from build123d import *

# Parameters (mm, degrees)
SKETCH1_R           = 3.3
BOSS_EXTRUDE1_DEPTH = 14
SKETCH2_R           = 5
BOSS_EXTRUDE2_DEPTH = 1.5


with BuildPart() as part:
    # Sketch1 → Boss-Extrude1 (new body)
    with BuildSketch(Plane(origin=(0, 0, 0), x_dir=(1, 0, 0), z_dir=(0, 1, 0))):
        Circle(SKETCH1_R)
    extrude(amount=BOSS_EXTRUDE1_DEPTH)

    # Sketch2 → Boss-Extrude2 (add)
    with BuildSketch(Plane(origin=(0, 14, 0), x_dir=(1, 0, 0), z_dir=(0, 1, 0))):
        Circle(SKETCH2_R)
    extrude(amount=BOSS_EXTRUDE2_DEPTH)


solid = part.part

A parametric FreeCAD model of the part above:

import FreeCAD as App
import Part
import Sketcher

V = App.Vector

doc = App.newDocument("Part")
body = doc.addObject("PartDesign::Body", "Body")

# Sketch on XZ plane
sketch1 = doc.addObject("Sketcher::SketchObject", "Sketch")
body.addObject(sketch1)
sketch1.AttachmentSupport = (doc.XZ_Plane, [""])
sketch1.MapMode = "FlatFace"
sketch1.addGeometry(Part.Circle(V(0, 0, 0), V(0, 0, 1), 3.3), False)
sketch1.addConstraint(Sketcher.Constraint("Coincident", 0, 3, -1, 1))
sketch1.addConstraint(Sketcher.Constraint("Diameter", 0, 6.6))
pad1 = doc.addObject("PartDesign::Pad", "Pad")
body.addObject(pad1)
pad1.Profile = sketch1
pad1.Length = 14
pad1.Reversed = True

# Sketch on XZ plane
sketch2 = doc.addObject("Sketcher::SketchObject", "Sketch001")
body.addObject(sketch2)
sketch2.AttachmentSupport = (doc.XZ_Plane, [""])
sketch2.MapMode = "FlatFace"
sketch2.AttachmentOffset = App.Placement(V(0, 0, -14), App.Rotation())
sketch2.addGeometry(Part.Circle(V(0, 0, 0), V(0, 0, 1), 5), False)
sketch2.addConstraint(Sketcher.Constraint("Coincident", 0, 3, -1, 1))
sketch2.addConstraint(Sketcher.Constraint("Diameter", 0, 10.0))
pad2 = doc.addObject("PartDesign::Pad", "Pad001")
body.addObject(pad2)
pad2.Profile = sketch2
pad2.Length = 1.5
pad2.Reversed = True

doc.recompute()
